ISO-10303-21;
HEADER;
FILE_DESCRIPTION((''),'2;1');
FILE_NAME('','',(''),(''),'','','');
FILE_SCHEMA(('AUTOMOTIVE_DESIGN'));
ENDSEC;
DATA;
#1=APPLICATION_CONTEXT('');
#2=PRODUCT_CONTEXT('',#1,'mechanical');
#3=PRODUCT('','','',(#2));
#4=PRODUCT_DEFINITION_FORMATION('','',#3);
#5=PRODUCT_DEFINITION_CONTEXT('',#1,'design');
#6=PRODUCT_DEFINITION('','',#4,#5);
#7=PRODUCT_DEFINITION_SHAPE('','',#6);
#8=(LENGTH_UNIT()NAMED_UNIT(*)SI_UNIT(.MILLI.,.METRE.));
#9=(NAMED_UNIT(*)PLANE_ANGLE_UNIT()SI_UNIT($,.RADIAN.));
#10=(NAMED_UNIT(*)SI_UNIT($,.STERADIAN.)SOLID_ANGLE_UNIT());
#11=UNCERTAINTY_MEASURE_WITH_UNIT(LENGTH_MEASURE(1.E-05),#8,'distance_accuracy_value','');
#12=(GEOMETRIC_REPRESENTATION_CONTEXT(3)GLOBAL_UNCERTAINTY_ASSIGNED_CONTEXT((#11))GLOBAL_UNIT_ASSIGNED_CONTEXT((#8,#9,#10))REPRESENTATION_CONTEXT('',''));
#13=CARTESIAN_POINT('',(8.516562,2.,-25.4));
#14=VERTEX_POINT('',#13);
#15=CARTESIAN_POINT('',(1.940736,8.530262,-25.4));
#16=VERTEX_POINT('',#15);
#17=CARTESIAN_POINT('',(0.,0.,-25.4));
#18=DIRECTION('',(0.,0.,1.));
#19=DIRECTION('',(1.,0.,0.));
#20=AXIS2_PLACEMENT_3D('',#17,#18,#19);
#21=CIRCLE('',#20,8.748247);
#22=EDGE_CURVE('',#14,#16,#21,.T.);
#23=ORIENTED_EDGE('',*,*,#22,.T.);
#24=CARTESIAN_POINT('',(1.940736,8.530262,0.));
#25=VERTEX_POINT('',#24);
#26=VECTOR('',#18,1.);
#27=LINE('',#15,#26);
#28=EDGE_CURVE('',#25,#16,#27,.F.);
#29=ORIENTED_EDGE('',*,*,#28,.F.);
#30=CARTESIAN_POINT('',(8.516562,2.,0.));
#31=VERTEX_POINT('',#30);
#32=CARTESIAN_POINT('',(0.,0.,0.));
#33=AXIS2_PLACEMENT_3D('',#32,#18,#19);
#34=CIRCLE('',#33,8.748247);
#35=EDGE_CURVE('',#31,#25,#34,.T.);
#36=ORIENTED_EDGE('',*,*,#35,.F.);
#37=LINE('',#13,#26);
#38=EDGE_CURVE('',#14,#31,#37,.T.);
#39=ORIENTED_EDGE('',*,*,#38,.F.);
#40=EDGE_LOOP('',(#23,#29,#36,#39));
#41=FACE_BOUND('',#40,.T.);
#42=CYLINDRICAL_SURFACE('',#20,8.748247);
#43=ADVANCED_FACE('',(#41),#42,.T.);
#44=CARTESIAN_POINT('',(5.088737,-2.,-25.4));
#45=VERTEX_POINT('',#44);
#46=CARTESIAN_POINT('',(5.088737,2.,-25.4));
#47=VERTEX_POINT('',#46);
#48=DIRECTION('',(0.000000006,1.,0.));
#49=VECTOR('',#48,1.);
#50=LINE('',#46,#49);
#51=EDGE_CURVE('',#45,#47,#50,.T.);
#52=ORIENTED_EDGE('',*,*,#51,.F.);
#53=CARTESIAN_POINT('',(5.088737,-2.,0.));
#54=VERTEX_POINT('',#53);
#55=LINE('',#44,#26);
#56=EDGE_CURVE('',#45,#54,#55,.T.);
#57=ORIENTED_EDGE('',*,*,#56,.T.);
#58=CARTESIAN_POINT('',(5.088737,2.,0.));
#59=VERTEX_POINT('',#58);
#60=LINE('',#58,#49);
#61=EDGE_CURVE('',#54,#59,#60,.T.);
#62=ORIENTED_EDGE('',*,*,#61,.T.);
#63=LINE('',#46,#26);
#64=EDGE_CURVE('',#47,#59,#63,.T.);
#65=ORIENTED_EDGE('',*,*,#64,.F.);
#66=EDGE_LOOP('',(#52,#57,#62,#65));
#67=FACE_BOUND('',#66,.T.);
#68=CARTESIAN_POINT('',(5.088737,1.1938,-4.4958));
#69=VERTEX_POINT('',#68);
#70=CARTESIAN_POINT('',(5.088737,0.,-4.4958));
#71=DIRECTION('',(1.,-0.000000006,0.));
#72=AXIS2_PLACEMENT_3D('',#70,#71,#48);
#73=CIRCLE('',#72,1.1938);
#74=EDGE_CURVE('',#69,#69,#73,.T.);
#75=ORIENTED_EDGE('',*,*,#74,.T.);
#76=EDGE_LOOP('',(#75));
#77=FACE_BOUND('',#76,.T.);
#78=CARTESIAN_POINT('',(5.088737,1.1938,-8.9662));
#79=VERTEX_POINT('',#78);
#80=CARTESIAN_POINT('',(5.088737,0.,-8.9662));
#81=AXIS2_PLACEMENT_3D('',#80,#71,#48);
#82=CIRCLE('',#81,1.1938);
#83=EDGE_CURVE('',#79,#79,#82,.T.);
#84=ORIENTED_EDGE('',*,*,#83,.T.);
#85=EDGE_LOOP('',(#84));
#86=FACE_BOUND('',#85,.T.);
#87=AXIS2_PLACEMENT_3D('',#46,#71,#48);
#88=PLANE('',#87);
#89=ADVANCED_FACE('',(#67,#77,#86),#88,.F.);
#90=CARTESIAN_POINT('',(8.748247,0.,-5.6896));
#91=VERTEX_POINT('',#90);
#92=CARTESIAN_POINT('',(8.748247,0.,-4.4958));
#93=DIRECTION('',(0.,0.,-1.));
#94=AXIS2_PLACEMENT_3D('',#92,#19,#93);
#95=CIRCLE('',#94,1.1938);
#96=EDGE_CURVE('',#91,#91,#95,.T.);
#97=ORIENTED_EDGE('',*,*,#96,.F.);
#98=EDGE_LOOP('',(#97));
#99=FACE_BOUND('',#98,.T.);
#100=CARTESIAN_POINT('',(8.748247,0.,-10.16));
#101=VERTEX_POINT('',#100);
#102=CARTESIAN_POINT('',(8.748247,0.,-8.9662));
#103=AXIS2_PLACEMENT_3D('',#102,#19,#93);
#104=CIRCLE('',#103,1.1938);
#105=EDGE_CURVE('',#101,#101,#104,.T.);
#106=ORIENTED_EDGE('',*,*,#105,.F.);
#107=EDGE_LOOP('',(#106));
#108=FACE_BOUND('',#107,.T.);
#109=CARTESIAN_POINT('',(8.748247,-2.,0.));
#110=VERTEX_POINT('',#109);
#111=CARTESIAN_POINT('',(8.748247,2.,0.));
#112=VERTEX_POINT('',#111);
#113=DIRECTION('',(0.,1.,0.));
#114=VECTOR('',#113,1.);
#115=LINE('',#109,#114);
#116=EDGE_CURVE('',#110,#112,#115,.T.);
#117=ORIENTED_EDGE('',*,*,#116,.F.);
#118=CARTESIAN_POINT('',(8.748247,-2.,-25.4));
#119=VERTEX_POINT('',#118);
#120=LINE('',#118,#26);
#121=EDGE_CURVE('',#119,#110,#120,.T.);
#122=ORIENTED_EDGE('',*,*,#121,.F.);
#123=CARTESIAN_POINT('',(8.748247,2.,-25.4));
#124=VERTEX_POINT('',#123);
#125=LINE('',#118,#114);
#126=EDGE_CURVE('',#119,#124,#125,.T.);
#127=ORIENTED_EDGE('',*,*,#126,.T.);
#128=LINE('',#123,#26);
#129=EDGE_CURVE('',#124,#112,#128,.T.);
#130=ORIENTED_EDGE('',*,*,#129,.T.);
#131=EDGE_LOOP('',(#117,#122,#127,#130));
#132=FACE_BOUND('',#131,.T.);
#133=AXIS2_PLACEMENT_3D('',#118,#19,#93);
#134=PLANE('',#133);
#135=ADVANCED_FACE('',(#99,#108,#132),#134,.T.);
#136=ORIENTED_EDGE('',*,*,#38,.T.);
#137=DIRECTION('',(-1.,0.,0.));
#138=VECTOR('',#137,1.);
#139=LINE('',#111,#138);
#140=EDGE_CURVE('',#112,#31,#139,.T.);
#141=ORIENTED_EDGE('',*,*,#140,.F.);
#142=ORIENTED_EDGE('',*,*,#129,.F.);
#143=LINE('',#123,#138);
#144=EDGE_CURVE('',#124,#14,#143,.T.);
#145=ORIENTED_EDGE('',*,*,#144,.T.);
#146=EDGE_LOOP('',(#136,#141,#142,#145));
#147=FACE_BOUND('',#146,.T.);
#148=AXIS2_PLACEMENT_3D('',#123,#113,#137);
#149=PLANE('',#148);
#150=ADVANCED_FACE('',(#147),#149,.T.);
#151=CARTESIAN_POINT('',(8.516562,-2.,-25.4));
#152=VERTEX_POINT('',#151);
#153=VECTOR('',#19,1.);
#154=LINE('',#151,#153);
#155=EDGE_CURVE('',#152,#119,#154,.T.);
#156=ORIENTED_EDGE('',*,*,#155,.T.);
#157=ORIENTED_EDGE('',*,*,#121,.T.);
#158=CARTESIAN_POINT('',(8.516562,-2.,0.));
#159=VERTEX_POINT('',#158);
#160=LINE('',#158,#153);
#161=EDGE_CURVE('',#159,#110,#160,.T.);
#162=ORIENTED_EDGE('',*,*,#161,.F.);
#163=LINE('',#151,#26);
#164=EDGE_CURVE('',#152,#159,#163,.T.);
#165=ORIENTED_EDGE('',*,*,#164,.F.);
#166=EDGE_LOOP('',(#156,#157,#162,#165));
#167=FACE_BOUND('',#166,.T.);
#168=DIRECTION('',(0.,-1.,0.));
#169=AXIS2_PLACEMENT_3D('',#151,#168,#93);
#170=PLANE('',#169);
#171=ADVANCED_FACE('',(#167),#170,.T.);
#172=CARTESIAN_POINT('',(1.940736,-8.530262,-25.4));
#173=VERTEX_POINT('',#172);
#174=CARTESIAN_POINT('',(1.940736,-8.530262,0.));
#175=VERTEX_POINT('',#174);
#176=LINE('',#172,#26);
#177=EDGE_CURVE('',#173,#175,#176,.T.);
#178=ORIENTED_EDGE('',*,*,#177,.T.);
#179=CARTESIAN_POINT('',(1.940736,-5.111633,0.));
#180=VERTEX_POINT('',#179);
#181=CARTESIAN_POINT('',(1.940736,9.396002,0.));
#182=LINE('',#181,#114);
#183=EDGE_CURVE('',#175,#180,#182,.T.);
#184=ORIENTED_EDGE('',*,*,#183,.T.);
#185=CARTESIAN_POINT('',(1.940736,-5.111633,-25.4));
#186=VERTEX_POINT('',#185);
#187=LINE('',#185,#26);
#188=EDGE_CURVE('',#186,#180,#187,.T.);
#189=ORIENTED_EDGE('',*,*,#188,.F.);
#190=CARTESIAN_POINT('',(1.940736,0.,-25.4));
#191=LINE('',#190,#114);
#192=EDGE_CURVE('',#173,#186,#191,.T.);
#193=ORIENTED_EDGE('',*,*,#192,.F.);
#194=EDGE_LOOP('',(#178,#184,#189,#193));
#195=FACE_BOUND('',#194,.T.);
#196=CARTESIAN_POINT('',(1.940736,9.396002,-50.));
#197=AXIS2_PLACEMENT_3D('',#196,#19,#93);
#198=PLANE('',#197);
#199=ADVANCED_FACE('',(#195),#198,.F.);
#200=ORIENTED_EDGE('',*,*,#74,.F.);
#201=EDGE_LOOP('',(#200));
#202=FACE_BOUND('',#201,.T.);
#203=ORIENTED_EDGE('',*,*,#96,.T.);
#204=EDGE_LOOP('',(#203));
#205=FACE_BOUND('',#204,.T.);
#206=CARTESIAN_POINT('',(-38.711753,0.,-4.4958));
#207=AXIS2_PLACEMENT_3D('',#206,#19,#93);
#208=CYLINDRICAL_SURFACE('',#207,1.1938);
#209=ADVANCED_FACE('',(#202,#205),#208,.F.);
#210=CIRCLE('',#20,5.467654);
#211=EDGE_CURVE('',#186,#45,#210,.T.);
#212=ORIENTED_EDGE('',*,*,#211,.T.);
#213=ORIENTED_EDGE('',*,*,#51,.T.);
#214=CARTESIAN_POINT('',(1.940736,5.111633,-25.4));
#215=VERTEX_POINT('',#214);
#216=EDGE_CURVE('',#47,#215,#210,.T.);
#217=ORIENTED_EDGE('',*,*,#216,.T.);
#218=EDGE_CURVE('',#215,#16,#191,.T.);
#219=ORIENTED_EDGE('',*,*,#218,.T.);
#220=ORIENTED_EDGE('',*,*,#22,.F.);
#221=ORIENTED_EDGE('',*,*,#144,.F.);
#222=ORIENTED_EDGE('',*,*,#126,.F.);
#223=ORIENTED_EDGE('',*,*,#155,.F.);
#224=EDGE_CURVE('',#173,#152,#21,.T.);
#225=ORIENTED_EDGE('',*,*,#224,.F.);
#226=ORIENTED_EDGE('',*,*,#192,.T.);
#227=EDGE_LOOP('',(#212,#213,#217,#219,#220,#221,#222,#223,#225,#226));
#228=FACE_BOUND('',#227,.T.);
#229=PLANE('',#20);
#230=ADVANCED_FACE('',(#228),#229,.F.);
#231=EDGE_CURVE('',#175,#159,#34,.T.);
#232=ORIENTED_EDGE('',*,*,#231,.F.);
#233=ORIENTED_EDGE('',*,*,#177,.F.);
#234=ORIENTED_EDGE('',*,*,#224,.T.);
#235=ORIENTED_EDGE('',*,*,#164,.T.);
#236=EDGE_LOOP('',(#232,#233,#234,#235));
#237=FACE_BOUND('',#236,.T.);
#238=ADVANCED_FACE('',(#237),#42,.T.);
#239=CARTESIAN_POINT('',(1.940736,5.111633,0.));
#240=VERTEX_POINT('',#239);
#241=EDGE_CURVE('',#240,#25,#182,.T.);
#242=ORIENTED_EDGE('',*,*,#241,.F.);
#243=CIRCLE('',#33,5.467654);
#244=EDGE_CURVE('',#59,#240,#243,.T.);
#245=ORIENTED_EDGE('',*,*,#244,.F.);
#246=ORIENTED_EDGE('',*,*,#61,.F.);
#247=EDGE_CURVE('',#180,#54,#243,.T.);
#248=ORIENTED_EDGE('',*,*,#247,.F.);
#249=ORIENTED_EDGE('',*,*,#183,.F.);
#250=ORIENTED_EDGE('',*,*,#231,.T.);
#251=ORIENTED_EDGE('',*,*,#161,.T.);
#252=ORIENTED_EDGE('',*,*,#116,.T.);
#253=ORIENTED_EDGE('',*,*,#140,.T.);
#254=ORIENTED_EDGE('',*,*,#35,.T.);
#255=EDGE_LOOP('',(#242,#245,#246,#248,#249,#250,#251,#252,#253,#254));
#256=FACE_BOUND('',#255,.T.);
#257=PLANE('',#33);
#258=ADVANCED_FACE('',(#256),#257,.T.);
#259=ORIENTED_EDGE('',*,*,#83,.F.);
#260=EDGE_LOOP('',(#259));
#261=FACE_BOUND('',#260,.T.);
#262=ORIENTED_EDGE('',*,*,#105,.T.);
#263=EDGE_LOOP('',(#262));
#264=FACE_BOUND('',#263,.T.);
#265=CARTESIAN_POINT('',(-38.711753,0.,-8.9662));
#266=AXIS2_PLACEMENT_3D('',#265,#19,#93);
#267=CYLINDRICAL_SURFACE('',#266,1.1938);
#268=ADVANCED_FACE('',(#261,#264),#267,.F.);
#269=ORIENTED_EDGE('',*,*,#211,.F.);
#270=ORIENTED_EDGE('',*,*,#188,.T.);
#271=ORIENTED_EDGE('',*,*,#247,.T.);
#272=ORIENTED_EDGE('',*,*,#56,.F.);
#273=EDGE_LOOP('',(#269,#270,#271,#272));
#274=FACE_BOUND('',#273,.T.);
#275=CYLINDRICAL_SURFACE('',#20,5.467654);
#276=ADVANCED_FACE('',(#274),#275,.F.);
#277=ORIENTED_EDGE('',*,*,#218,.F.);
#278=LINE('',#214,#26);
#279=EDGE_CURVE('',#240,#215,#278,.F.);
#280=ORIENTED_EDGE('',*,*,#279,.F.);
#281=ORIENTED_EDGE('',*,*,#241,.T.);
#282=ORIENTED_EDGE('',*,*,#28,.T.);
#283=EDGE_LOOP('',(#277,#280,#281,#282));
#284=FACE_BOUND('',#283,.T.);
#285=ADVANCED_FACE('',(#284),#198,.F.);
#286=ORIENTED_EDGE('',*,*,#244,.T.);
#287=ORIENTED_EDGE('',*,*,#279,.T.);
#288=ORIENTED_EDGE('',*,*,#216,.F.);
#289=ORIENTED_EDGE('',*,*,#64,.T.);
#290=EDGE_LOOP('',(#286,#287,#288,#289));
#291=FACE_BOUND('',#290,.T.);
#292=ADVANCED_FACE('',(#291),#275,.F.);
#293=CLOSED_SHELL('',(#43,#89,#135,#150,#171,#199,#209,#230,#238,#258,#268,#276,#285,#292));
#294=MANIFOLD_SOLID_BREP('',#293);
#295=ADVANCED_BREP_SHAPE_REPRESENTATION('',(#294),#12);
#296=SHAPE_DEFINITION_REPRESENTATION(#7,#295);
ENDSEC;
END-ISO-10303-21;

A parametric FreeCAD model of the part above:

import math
import FreeCAD as App
import Part
import Sketcher
from FreeCAD import Vector
Q = App.Units.Quantity


def add_polygon(sketch, points):
    """Adds a closed chain of lines whose ends are joined by coincident constraints."""
    first, n = sketch.GeometryCount, len(points)
    for a, b in zip(points, points[1:] + points[:1]):
        sketch.addGeometry(Part.LineSegment(App.Vector(*a, 0), App.Vector(*b, 0)), False)
    for i in range(n):
        sketch.addConstraint(Sketcher.Constraint("Coincident", first + i, 2, first + (i + 1) % n, 1))

doc = App.newDocument("Part")
params = doc.addObject("Spreadsheet::Sheet", "Params")
for row, (alias, value) in enumerate([
    ("sketch1_height", "4 mm"),
    ("pad1_length", "25.4 mm"),
    ("pocket1_length", "50 mm"),
    ("pocket2_length", "50 mm"),
], start=1):
    params.set(f"A{row}", alias)
    params.set(f"B{row}", "=" + value)
    params.setAlias(f"B{row}", alias)

body = doc.addObject("PartDesign::Body", "Body")

# Sketch on XY plane
sketch1 = body.newObject("Sketcher::SketchObject", "Sketch")
sketch1.AttachmentSupport = (doc.getObject("XY_Plane"), [""])
sketch1.MapMode = "FlatFace"
sketch1.addGeometry(Part.LineSegment(Vector(-8.748247, -2, 0), Vector(-8.516562, -2, 0)), False)
sketch1.addGeometry(Part.ArcOfCircle(Part.Circle(Vector(0, 0, 0), Vector(0, 0, 1), 8.748247), math.radians(-166.784324), math.radians(-13.215676)), False)
sketch1.addGeometry(Part.LineSegment(Vector(8.516562, -2, 0), Vector(8.748247, -2, 0)), False)
sketch1.addGeometry(Part.LineSegment(Vector(8.748247, -2, 0), Vector(8.748247, 2, 0)), False)
sketch1.addGeometry(Part.LineSegment(Vector(8.748247, 2, 0), Vector(8.516562, 2, 0)), False)
sketch1.addGeometry(Part.ArcOfCircle(Part.Circle(Vector(0, 0, 0), Vector(0, 0, 1), 8.748247), math.radians(13.215676), math.radians(166.784324)), False)
sketch1.addGeometry(Part.LineSegment(Vector(-8.516562, 2, 0), Vector(-8.748247, 2, 0)), False)
sketch1.addGeometry(Part.LineSegment(Vector(-8.748247, 2, 0), Vector(-8.748247, -2, 0)), False)
sketch1.addGeometry(Part.ArcOfCircle(Part.Circle(Vector(0, 0, 0), Vector(0, 0, 1), 5.467654), math.radians(21.456059), math.radians(158.543941)), False)
sketch1.addGeometry(Part.LineSegment(Vector(5.088737, 2, 0), Vector(5.088737, -2, 0)), False)
sketch1.addGeometry(Part.ArcOfCircle(Part.Circle(Vector(0, 0, 0), Vector(0, 0, 1), 5.467654), math.radians(-158.543941), math.radians(-21.456059)), False)
sketch1.addGeometry(Part.LineSegment(Vector(-5.088737, -2, 0), Vector(-5.088737, 2, 0)), False)
sketch1.addConstraint(Sketcher.Constraint("Coincident", 0, 2, 1, 1))
sketch1.addConstraint(Sketcher.Constraint("Coincident", 1, 2, 2, 1))
sketch1.addConstraint(Sketcher.Constraint("Coincident", 2, 2, 3, 1))
sketch1.addConstraint(Sketcher.Constraint("Coincident", 3, 2, 4, 1))
sketch1.addConstraint(Sketcher.Constraint("Coincident", 4, 2, 5, 1))
sketch1.addConstraint(Sketcher.Constraint("Coincident", 5, 2, 6, 1))
sketch1.addConstraint(Sketcher.Constraint("Coincident", 6, 2, 7, 1))
sketch1.addConstraint(Sketcher.Constraint("Coincident", 7, 2, 0, 1))
sketch1.addConstraint(Sketcher.Constraint("Coincident", 8, 1, 9, 1))
sketch1.addConstraint(Sketcher.Constraint("Coincident", 9, 2, 10, 2))
sketch1.addConstraint(Sketcher.Constraint("Coincident", 10, 1, 11, 1))
sketch1.addConstraint(Sketcher.Constraint("Coincident", 11, 2, 8, 2))
sketch1.addConstraint(Sketcher.Constraint("Horizontal", 0))
sketch1.addConstraint(Sketcher.Constraint("Horizontal", 2))
sketch1.addConstraint(Sketcher.Constraint("Vertical", 3))
sketch1.addConstraint(Sketcher.Constraint("Horizontal", 4))
sketch1.addConstraint(Sketcher.Constraint("Horizontal", 6))
sketch1.addConstraint(Sketcher.Constraint("Vertical", 7))
sketch1.addConstraint(Sketcher.Constraint("Vertical", 9))
sketch1.addConstraint(Sketcher.Constraint("Vertical", 11))
sketch1.addConstraint(Sketcher.Constraint("Coincident", 1, 3, -1, 1))
sketch1.addConstraint(Sketcher.Constraint("Coincident", 5, 3, -1, 1))
sketch1.addConstraint(Sketcher.Constraint("Coincident", 8, 3, -1, 1))
sketch1.addConstraint(Sketcher.Constraint("Coincident", 10, 3, -1, 1))
sketch1.addConstraint(Sketcher.Constraint("Equal", 1, 5))
sketch1.addConstraint(Sketcher.Constraint("Equal", 8, 10))
sketch1.addConstraint(Sketcher.Constraint("Symmetric", 2, 2, 6, 2, -1, 1))
sketch1.addConstraint(Sketcher.Constraint("Horizontal", 0, 2, 1, 2))
sketch1.addConstraint(Sketcher.Constraint("Horizontal", 4, 2, 5, 2))
sketch1.addConstraint(Sketcher.Constraint("Horizontal", 6, 2, 8, 1))
sketch1.addConstraint(Sketcher.Constraint("Horizontal", 9, 2, 10, 1))
sketch1.addConstraint(Sketcher.Constraint("DistanceY", 3, 1, 3, 2, Q("4 mm")))
sketch1.addConstraint(Sketcher.Constraint("Radius", 1, Q("8.748247 mm")))
sketch1.addConstraint(Sketcher.Constraint("Radius", 8, Q("5.467654 mm")))
sketch1.addConstraint(Sketcher.Constraint("DistanceX", 0, 1, 0, 2, Q("0.231685 mm")))
sketch1.setExpression("Constraints[31]", "Params.sketch1_height")
pad1 = body.newObject("PartDesign::Pad", "Pad")
pad1.Profile = sketch1
pad1.setExpression("Length", "Params.pad1_length")
pad1.Reversed = True

# Sketch on XY plane
sketch2 = body.newObject("Sketcher::SketchObject", "Sketch001")
sketch2.AttachmentSupport = (doc.getObject("XY_Plane"), [""])
sketch2.MapMode = "FlatFace"
add_polygon(sketch2, [(-25.4, 9.396002), (-25.4, -9.995579), (1.940736, -9.995579), (1.940736, 9.396002)])  # lines 0-3
sketch2.addConstraint(Sketcher.Constraint("Vertical", 0))
sketch2.addConstraint(Sketcher.Constraint("Horizontal", 1))
sketch2.addConstraint(Sketcher.Constraint("Vertical", 2))
sketch2.addConstraint(Sketcher.Constraint("Horizontal", 3))
sketch2.addConstraint(Sketcher.Constraint("DistanceX", 0, 2, -1, 1, Q("25.4 mm")))
sketch2.addConstraint(Sketcher.Constraint("DistanceY", -1, 1, 2, 2, Q("9.396002 mm")))
sketch2.addConstraint(Sketcher.Constraint("DistanceY", 0, 2, 0, 1, Q("19.391581 mm")))
sketch2.addConstraint(Sketcher.Constraint("DistanceX", 1, 1, 1, 2, Q("27.340736 mm")))
pocket1 = body.newObject("PartDesign::Pocket", "Pocket")
pocket1.Profile = sketch2
pocket1.setExpression("Length", "Params.pocket1_length")

# Sketch on YZ plane
sketch3 = body.newObject("Sketcher::SketchObject", "Sketch002")
sketch3.AttachmentSupport = (doc.getObject("YZ_Plane"), [""])
sketch3.MapMode = "FlatFace"
sketch3.AttachmentOffset = App.Placement(Vector(0, 0, 11.288247), App.Rotation())
sketch3.addGeometry(Part.Circle(Vector(0, -4.4958, 0), Vector(0, 0, 1), 1.1938), False)
sketch3.addGeometry(Part.Circle(Vector(0, -8.9662, 0), Vector(0, 0, 1), 1.1938), False)
sketch3.addConstraint(Sketcher.Constraint("Equal", 0, 1))
sketch3.addConstraint(Sketcher.Constraint("PointOnObject", 0, 3, -2))
sketch3.addConstraint(Sketcher.Constraint("PointOnObject", 1, 3, -2))
sketch3.addConstraint(Sketcher.Constraint("Diameter", 0, Q("2.3876 mm")))
sketch3.addConstraint(Sketcher.Constraint("DistanceY", 0, 3, -1, 1, Q("4.4958 mm")))
sketch3.addConstraint(Sketcher.Constraint("DistanceY", 1, 3, -1, 1, Q("8.9662 mm")))
pocket2 = body.newObject("PartDesign::Pocket", "Pocket001")
pocket2.Profile = sketch3
pocket2.setExpression("Length", "Params.pocket2_length")

doc.recompute()
